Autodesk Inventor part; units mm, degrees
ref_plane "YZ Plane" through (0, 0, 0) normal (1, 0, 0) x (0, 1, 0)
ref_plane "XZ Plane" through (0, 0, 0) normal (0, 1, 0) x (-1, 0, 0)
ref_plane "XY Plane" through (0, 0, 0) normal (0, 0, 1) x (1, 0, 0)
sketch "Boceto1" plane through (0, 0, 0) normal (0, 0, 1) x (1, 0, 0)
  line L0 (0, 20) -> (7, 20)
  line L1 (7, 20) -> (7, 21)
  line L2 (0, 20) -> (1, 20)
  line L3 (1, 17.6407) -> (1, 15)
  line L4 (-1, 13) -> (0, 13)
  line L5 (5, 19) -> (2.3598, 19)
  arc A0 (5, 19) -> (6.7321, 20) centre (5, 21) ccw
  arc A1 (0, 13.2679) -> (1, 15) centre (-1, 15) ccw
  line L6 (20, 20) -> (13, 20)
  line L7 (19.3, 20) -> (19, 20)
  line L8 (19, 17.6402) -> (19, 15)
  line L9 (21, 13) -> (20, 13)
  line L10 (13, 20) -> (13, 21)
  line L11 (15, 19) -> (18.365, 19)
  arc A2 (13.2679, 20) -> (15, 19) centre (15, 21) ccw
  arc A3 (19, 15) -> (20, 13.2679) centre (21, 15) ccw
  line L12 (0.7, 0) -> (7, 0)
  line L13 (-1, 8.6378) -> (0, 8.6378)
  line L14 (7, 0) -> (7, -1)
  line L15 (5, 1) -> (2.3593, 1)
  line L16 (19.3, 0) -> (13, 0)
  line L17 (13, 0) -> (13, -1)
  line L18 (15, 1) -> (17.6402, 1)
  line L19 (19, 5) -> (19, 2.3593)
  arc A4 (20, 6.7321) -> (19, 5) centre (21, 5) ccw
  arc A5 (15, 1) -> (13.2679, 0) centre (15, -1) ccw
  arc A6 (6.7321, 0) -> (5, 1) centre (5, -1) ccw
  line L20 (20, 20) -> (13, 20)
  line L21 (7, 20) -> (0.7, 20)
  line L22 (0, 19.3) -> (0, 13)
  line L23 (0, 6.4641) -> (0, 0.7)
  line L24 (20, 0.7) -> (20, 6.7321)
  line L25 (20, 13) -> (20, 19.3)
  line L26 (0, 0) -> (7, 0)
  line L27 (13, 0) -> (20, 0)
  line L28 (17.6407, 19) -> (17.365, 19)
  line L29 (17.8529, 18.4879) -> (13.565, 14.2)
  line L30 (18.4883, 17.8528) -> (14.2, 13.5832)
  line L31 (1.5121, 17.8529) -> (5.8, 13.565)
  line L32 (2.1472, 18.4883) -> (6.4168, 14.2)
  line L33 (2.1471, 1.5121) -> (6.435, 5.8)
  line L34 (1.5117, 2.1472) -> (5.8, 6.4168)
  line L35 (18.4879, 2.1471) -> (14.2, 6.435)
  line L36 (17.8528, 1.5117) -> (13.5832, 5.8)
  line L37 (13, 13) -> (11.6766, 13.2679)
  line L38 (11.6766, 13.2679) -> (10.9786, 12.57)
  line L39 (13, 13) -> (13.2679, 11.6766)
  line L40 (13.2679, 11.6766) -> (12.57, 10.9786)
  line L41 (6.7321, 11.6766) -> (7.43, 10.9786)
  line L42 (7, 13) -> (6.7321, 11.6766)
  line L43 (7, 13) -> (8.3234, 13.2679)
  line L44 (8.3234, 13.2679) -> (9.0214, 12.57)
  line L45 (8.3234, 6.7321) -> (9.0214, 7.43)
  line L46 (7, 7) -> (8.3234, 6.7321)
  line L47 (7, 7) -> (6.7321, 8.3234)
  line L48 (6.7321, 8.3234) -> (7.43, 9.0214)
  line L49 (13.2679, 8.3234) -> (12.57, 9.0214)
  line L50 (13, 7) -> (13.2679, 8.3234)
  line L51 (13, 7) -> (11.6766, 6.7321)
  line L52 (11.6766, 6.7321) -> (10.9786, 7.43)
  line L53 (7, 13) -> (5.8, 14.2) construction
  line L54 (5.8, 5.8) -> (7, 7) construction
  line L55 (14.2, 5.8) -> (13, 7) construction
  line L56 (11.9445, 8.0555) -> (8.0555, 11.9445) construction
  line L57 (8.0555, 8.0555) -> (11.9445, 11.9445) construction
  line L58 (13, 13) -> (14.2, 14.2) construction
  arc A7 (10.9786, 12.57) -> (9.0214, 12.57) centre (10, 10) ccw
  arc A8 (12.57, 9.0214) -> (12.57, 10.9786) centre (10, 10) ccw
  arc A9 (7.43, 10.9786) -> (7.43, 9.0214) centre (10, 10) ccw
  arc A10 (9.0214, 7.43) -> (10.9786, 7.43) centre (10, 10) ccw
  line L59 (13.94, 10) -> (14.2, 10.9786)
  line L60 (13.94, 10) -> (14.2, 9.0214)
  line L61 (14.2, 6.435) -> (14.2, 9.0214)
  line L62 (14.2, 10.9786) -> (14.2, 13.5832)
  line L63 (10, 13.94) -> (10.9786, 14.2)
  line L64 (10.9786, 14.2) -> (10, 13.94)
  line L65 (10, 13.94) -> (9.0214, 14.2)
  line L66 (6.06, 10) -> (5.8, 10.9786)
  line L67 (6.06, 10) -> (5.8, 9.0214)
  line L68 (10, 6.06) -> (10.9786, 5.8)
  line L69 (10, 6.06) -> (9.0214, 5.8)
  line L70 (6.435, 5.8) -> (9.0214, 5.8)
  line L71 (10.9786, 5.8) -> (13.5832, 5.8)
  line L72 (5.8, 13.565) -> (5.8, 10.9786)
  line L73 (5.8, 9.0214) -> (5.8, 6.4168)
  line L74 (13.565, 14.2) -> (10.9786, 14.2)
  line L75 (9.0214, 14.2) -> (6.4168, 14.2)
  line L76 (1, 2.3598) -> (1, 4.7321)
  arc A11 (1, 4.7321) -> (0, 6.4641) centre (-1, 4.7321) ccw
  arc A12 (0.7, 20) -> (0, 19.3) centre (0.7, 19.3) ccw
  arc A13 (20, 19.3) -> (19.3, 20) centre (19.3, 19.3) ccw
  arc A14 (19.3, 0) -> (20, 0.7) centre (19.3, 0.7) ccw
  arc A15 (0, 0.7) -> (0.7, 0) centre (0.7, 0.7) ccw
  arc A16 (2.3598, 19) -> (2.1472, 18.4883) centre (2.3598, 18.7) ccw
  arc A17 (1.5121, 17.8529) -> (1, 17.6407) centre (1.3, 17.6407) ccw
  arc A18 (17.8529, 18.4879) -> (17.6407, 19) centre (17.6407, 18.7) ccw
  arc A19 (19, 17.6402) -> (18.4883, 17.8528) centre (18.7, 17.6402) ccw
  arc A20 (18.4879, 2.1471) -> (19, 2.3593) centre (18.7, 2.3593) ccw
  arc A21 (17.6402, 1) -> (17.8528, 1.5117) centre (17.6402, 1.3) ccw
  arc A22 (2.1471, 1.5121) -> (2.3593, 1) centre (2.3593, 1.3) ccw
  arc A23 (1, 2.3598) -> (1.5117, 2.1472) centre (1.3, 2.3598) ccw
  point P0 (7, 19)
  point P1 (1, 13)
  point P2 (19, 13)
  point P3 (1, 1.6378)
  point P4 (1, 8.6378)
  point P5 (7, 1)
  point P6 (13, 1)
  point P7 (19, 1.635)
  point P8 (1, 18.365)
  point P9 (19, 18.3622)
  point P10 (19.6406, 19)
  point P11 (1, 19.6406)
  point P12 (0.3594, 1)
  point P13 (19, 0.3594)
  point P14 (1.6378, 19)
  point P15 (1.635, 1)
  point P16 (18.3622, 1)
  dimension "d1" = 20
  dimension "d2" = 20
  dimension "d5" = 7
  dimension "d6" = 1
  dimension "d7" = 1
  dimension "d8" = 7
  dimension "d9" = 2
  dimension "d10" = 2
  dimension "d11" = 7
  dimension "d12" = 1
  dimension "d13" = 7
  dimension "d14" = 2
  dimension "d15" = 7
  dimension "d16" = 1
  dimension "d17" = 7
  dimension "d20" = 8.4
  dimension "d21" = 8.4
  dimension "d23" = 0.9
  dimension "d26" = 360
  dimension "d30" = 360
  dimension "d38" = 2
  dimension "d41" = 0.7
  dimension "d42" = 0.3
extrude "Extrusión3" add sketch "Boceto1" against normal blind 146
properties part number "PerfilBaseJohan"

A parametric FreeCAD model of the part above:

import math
import FreeCAD as App
import Part
import Sketcher

V = App.Vector
Q = App.Units.Quantity

doc = App.newDocument("Part")
body = doc.addObject("PartDesign::Body", "Body")

# Sketch on XY plane
sketch1 = body.newObject("Sketcher::SketchObject", "Sketch")
sketch1.AttachmentSupport = (doc.getObject("XY_Plane"), [""])
sketch1.MapMode = "FlatFace"
sketch1.addGeometry([
    Part.LineSegment(V(6.7321, 20, 0), V(0.7, 20, 0)),  # 0
    Part.ArcOfCircle(Part.Circle(V(0.7, 19.3, 0), V(0, 0, 1), 0.7), math.radians(90), math.radians(180)),  # 1
    Part.LineSegment(V(0, 19.3, 0), V(0, 13.2679, 0)),  # 2
    Part.ArcOfCircle(Part.Circle(V(-1, 15, 0), V(0, 0, 1), 2.000043), math.radians(-60.000705), math.radians(0)),  # 3
    Part.LineSegment(V(1, 15, 0), V(1, 17.6407, 0)),  # 4
    Part.ArcOfCircle(Part.Circle(V(1.3, 17.6407, 0), V(0, 0, 1), 0.300025), math.radians(45.013504), math.radians(180)),  # 5
    Part.LineSegment(V(1.5121, 17.8529, 0), V(5.8, 13.565, 0)),  # 6
    Part.LineSegment(V(5.8, 13.565, 0), V(5.8, 10.9786, 0)),  # 7
    Part.LineSegment(V(5.8, 10.9786, 0), V(6.06, 10, 0)),  # 8
    Part.LineSegment(V(6.06, 10, 0), V(5.8, 9.0214, 0)),  # 9
    Part.LineSegment(V(5.8, 9.0214, 0), V(5.8, 6.4168, 0)),  # 10
    Part.LineSegment(V(5.8, 6.4168, 0), V(1.5117, 2.1472, 0)),  # 11
    Part.ArcOfCircle(Part.Circle(V(1.3, 2.3598, 0), V(0, 0, 1), 0.3), math.radians(180), math.radians(314.878468)),  # 12
    Part.LineSegment(V(1, 2.3598, 0), V(1, 4.7321, 0)),  # 13
    Part.ArcOfCircle(Part.Circle(V(-1, 4.7321, 0), V(0, 0, 1), 2), math.radians(0), math.radians(59.999272)),  # 14
    Part.LineSegment(V(0, 6.4641, 0), V(0, 0.7, 0)),  # 15
    Part.ArcOfCircle(Part.Circle(V(0.7, 0.7, 0), V(0, 0, 1), 0.7), math.radians(180), math.radians(270)),  # 16
    Part.LineSegment(V(0.7, 0, 0), V(6.7321, 0, 0)),  # 17
    Part.ArcOfCircle(Part.Circle(V(5, -1, 0), V(0, 0, 1), 2.000043), math.radians(29.999295), math.radians(90)),  # 18
    Part.LineSegment(V(5, 1, 0), V(2.3593, 1, 0)),  # 19
    Part.ArcOfCircle(Part.Circle(V(2.3593, 1.3, 0), V(0, 0, 1), 0.300025), math.radians(135.013504), math.radians(270)),  # 20
    Part.LineSegment(V(2.1471, 1.5121, 0), V(6.435, 5.8, 0)),  # 21
    Part.LineSegment(V(6.435, 5.8, 0), V(9.0214, 5.8, 0)),  # 22
    Part.LineSegment(V(9.0214, 5.8, 0), V(10, 6.06, 0)),  # 23
    Part.LineSegment(V(10, 6.06, 0), V(10.9786, 5.8, 0)),  # 24
    Part.LineSegment(V(10.9786, 5.8, 0), V(13.5832, 5.8, 0)),  # 25
    Part.LineSegment(V(13.5832, 5.8, 0), V(17.8528, 1.5117, 0)),  # 26
    Part.ArcOfCircle(Part.Circle(V(17.6402, 1.3, 0), V(0, 0, 1), 0.3), math.radians(-90), math.radians(44.878468)),  # 27
    Part.LineSegment(V(17.6402, 1, 0), V(15, 1, 0)),  # 28
    Part.ArcOfCircle(Part.Circle(V(15, -1, 0), V(0, 0, 1), 2), math.radians(90), math.radians(150.000705)),  # 29
    Part.LineSegment(V(13.2679, 0, 0), V(19.3, 0, 0)),  # 30
    Part.ArcOfCircle(Part.Circle(V(19.3, 0.7, 0), V(0, 0, 1), 0.7), math.radians(-90), math.radians(0)),  # 31
    Part.LineSegment(V(20, 0.7, 0), V(20, 6.7321, 0)),  # 32
    Part.ArcOfCircle(Part.Circle(V(21, 5, 0), V(0, 0, 1), 2.000043), math.radians(119.999295), math.radians(180)),  # 33
    Part.LineSegment(V(19, 5, 0), V(19, 2.3593, 0)),  # 34
    Part.ArcOfCircle(Part.Circle(V(18.7, 2.3593, 0), V(0, 0, 1), 0.300025), math.radians(-134.986496), math.radians(0)),  # 35
    Part.LineSegment(V(18.4879, 2.1471, 0), V(14.2, 6.435, 0)),  # 36
    Part.LineSegment(V(14.2, 6.435, 0), V(14.2, 9.0214, 0)),  # 37
    Part.LineSegment(V(14.2, 9.0214, 0), V(13.94, 10, 0)),  # 38
    Part.LineSegment(V(13.94, 10, 0), V(14.2, 10.9786, 0)),  # 39
    Part.LineSegment(V(14.2, 10.9786, 0), V(14.2, 13.5832, 0)),  # 40
    Part.LineSegment(V(14.2, 13.5832, 0), V(18.4883, 17.8528, 0)),  # 41
    Part.ArcOfCircle(Part.Circle(V(18.7, 17.6402, 0), V(0, 0, 1), 0.3), math.radians(0), math.radians(134.878468)),  # 42
    Part.LineSegment(V(19, 17.6402, 0), V(19, 15, 0)),  # 43
    Part.ArcOfCircle(Part.Circle(V(21, 15, 0), V(0, 0, 1), 2), math.radians(180), math.radians(240.000705)),  # 44
    Part.LineSegment(V(20, 13.2679, 0), V(20, 19.3, 0)),  # 45
    Part.ArcOfCircle(Part.Circle(V(19.3, 19.3, 0), V(0, 0, 1), 0.7), math.radians(0), math.radians(90)),  # 46
    Part.LineSegment(V(19.3, 20, 0), V(13.2679, 20, 0)),  # 47
    Part.ArcOfCircle(Part.Circle(V(15, 21, 0), V(0, 0, 1), 2.000043), math.radians(-150.000705), math.radians(-90)),  # 48
    Part.LineSegment(V(15, 19, 0), V(17.6407, 19, 0)),  # 49
    Part.ArcOfCircle(Part.Circle(V(17.6407, 18.7, 0), V(0, 0, 1), 0.300025), math.radians(-44.986496), math.radians(90)),  # 50
    Part.LineSegment(V(17.8529, 18.4879, 0), V(13.565, 14.2, 0)),  # 51
    Part.LineSegment(V(13.565, 14.2, 0), V(10.9786, 14.2, 0)),  # 52
    Part.LineSegment(V(10.9786, 14.2, 0), V(10, 13.94, 0)),  # 53
    Part.LineSegment(V(10, 13.94, 0), V(9.0214, 14.2, 0)),  # 54
    Part.LineSegment(V(9.0214, 14.2, 0), V(6.4168, 14.2, 0)),  # 55
    Part.LineSegment(V(6.4168, 14.2, 0), V(2.1472, 18.4883, 0)),  # 56
    Part.ArcOfCircle(Part.Circle(V(2.3598, 18.7, 0), V(0, 0, 1), 0.3), math.radians(90), math.radians(224.878468)),  # 57
    Part.LineSegment(V(2.3598, 19, 0), V(5, 19, 0)),  # 58
    Part.ArcOfCircle(Part.Circle(V(5, 21, 0), V(0, 0, 1), 2), math.radians(-90), math.radians(-29.999295)),  # 59
    Part.LineSegment(V(11.6766, 13.2679, 0), V(13, 13, 0)),  # 60
    Part.LineSegment(V(13, 13, 0), V(13.2679, 11.6766, 0)),  # 61
    Part.LineSegment(V(13.2679, 11.6766, 0), V(12.57, 10.9786, 0)),  # 62
    Part.ArcOfCircle(Part.Circle(V(10, 10, 0), V(0, 0, 1), 2.750011), math.radians(-20.845743), math.radians(20.845743)),  # 63
    Part.LineSegment(V(12.57, 9.0214, 0), V(13.2679, 8.3234, 0)),  # 64
    Part.LineSegment(V(13.2679, 8.3234, 0), V(13, 7, 0)),  # 65
    Part.LineSegment(V(13, 7, 0), V(11.6766, 6.7321, 0)),  # 66
    Part.LineSegment(V(11.6766, 6.7321, 0), V(10.9786, 7.43, 0)),  # 67
    Part.ArcOfCircle(Part.Circle(V(10, 10, 0), V(0, 0, 1), 2.750011), math.radians(-110.845743), math.radians(-69.154257)),  # 68
    Part.LineSegment(V(9.0214, 7.43, 0), V(8.3234, 6.7321, 0)),  # 69
    Part.LineSegment(V(8.3234, 6.7321, 0), V(7, 7, 0)),  # 70
    Part.LineSegment(V(7, 7, 0), V(6.7321, 8.3234, 0)),  # 71
    Part.LineSegment(V(6.7321, 8.3234, 0), V(7.43, 9.0214, 0)),  # 72
    Part.ArcOfCircle(Part.Circle(V(10, 10, 0), V(0, 0, 1), 2.750011), math.radians(159.154257), math.radians(200.845743)),  # 73
    Part.LineSegment(V(7.43, 10.9786, 0), V(6.7321, 11.6766, 0)),  # 74
    Part.LineSegment(V(6.7321, 11.6766, 0), V(7, 13, 0)),  # 75
    Part.LineSegment(V(7, 13, 0), V(8.3234, 13.2679, 0)),  # 76
    Part.LineSegment(V(8.3234, 13.2679, 0), V(9.0214, 12.57, 0)),  # 77
    Part.ArcOfCircle(Part.Circle(V(10, 10, 0), V(0, 0, 1), 2.750011), math.radians(69.154257), math.radians(110.845743)),  # 78
    Part.LineSegment(V(10.9786, 12.57, 0), V(11.6766, 13.2679, 0)),  # 79
], False)
sketch1.addConstraint([
    Sketcher.Constraint("Tangent", 0, 2, 1, 1),
    Sketcher.Constraint("Tangent", 1, 2, 2, 1),
    Sketcher.Constraint("Coincident", 2, 2, 3, 1),
    Sketcher.Constraint("Tangent", 3, 2, 4, 1),
    Sketcher.Constraint("Tangent", 4, 2, 5, 2),
    Sketcher.Constraint("Tangent", 5, 1, 6, 1),
    Sketcher.Constraint("Coincident", 6, 2, 7, 1),
    Sketcher.Constraint("Coincident", 7, 2, 8, 1),
    Sketcher.Constraint("Coincident", 8, 2, 9, 1),
    Sketcher.Constraint("Coincident", 9, 2, 10, 1),
    Sketcher.Constraint("Coincident", 10, 2, 11, 1),
    Sketcher.Constraint("Tangent", 11, 2, 12, 2),
    Sketcher.Constraint("Tangent", 12, 1, 13, 1),
    Sketcher.Constraint("Tangent", 13, 2, 14, 1),
    Sketcher.Constraint("Coincident", 14, 2, 15, 1),
    Sketcher.Constraint("Tangent", 15, 2, 16, 1),
    Sketcher.Constraint("Tangent", 16, 2, 17, 1),
    Sketcher.Constraint("Coincident", 17, 2, 18, 1),
    Sketcher.Constraint("Tangent", 18, 2, 19, 1),
    Sketcher.Constraint("Tangent", 19, 2, 20, 2),
    Sketcher.Constraint("Tangent", 20, 1, 21, 1),
    Sketcher.Constraint("Coincident", 21, 2, 22, 1),
    Sketcher.Constraint("Coincident", 22, 2, 23, 1),
    Sketcher.Constraint("Coincident", 23, 2, 24, 1),
    Sketcher.Constraint("Coincident", 24, 2, 25, 1),
    Sketcher.Constraint("Coincident", 25, 2, 26, 1),
    Sketcher.Constraint("Tangent", 26, 2, 27, 2),
    Sketcher.Constraint("Tangent", 27, 1, 28, 1),
    Sketcher.Constraint("Tangent", 28, 2, 29, 1),
    Sketcher.Constraint("Coincident", 29, 2, 30, 1),
    Sketcher.Constraint("Tangent", 30, 2, 31, 1),
    Sketcher.Constraint("Tangent", 31, 2, 32, 1),
    Sketcher.Constraint("Coincident", 32, 2, 33, 1),
    Sketcher.Constraint("Tangent", 33, 2, 34, 1),
    Sketcher.Constraint("Tangent", 34, 2, 35, 2),
    Sketcher.Constraint("Tangent", 35, 1, 36, 1),
    Sketcher.Constraint("Coincident", 36, 2, 37, 1),
    Sketcher.Constraint("Coincident", 37, 2, 38, 1),
    Sketcher.Constraint("Coincident", 38, 2, 39, 1),
    Sketcher.Constraint("Coincident", 39, 2, 40, 1),
    Sketcher.Constraint("Coincident", 40, 2, 41, 1),
    Sketcher.Constraint("Tangent", 41, 2, 42, 2),
    Sketcher.Constraint("Tangent", 42, 1, 43, 1),
    Sketcher.Constraint("Tangent", 43, 2, 44, 1),
    Sketcher.Constraint("Coincident", 44, 2, 45, 1),
    Sketcher.Constraint("Tangent", 45, 2, 46, 1),
    Sketcher.Constraint("Tangent", 46, 2, 47, 1),
    Sketcher.Constraint("Coincident", 47, 2, 48, 1),
    Sketcher.Constraint("Tangent", 48, 2, 49, 1),
    Sketcher.Constraint("Tangent", 49, 2, 50, 2),
    Sketcher.Constraint("Tangent", 50, 1, 51, 1),
    Sketcher.Constraint("Coincident", 51, 2, 52, 1),
    Sketcher.Constraint("Coincident", 52, 2, 53, 1),
    Sketcher.Constraint("Coincident", 53, 2, 54, 1),
    Sketcher.Constraint("Coincident", 54, 2, 55, 1),
    Sketcher.Constraint("Coincident", 55, 2, 56, 1),
    Sketcher.Constraint("Tangent", 56, 2, 57, 2),
    Sketcher.Constraint("Tangent", 57, 1, 58, 1),
    Sketcher.Constraint("Tangent", 58, 2, 59, 1),
    Sketcher.Constraint("Coincident", 59, 2, 0, 1),
    Sketcher.Constraint("Coincident", 60, 2, 61, 1),
    Sketcher.Constraint("Coincident", 61, 2, 62, 1),
    Sketcher.Constraint("Coincident", 62, 2, 63, 2),
    Sketcher.Constraint("Coincident", 63, 1, 64, 1),
    Sketcher.Constraint("Coincident", 64, 2, 65, 1),
    Sketcher.Constraint("Coincident", 65, 2, 66, 1),
    Sketcher.Constraint("Coincident", 66, 2, 67, 1),
    Sketcher.Constraint("Coincident", 67, 2, 68, 2),
    Sketcher.Constraint("Coincident", 68, 1, 69, 1),
    Sketcher.Constraint("Coincident", 69, 2, 70, 1),
    Sketcher.Constraint("Coincident", 70, 2, 71, 1),
    Sketcher.Constraint("Coincident", 71, 2, 72, 1),
    Sketcher.Constraint("Coincident", 72, 2, 73, 2),
    Sketcher.Constraint("Coincident", 73, 1, 74, 1),
    Sketcher.Constraint("Coincident", 74, 2, 75, 1),
    Sketcher.Constraint("Coincident", 75, 2, 76, 1),
    Sketcher.Constraint("Coincident", 76, 2, 77, 1),
    Sketcher.Constraint("Coincident", 77, 2, 78, 2),
    Sketcher.Constraint("Coincident", 78, 1, 79, 1),
    Sketcher.Constraint("Coincident", 79, 2, 60, 1),
    Sketcher.Constraint("Horizontal", 0),
    Sketcher.Constraint("Vertical", 2),
    Sketcher.Constraint("Vertical", 4),
    Sketcher.Constraint("Vertical", 7),
    Sketcher.Constraint("Vertical", 10),
    Sketcher.Constraint("Vertical", 13),
    Sketcher.Constraint("Vertical", 15),
    Sketcher.Constraint("Horizontal", 17),
    Sketcher.Constraint("Horizontal", 19),
    Sketcher.Constraint("Horizontal", 22),
    Sketcher.Constraint("Horizontal", 25),
    Sketcher.Constraint("Horizontal", 28),
    Sketcher.Constraint("Horizontal", 30),
    Sketcher.Constraint("Vertical", 32),
    Sketcher.Constraint("Vertical", 34),
    Sketcher.Constraint("Vertical", 37),
    Sketcher.Constraint("Vertical", 40),
    Sketcher.Constraint("Vertical", 43),
    Sketcher.Constraint("Vertical", 45),
    Sketcher.Constraint("Horizontal", 47),
    Sketcher.Constraint("Horizontal", 49),
    Sketcher.Constraint("Horizontal", 52),
    Sketcher.Constraint("Horizontal", 55),
    Sketcher.Constraint("Horizontal", 58),
    Sketcher.Constraint("Coincident", 68, 3, 63, 3),
    Sketcher.Constraint("Coincident", 73, 3, 63, 3),
    Sketcher.Constraint("Coincident", 78, 3, 63, 3),
    Sketcher.Constraint("Equal", 5, 12),
    Sketcher.Constraint("Equal", 3, 14),
    Sketcher.Constraint("Equal", 1, 16),
    Sketcher.Constraint("Equal", 14, 18),
    Sketcher.Constraint("Equal", 12, 20),
    Sketcher.Constraint("Equal", 20, 27),
    Sketcher.Constraint("Equal", 18, 29),
    Sketcher.Constraint("Equal", 16, 31),
    Sketcher.Constraint("Equal", 29, 33),
    Sketcher.Constraint("Equal", 27, 35),
    Sketcher.Constraint("Equal", 35, 42),
    Sketcher.Constraint("Equal", 33, 44),
    Sketcher.Constraint("Equal", 31, 46),
    Sketcher.Constraint("Equal", 44, 48),
    Sketcher.Constraint("Equal", 42, 50),
    Sketcher.Constraint("Equal", 50, 57),
    Sketcher.Constraint("Equal", 48, 59),
    Sketcher.Constraint("Equal", 63, 68),
    Sketcher.Constraint("Equal", 68, 73),
    Sketcher.Constraint("Equal", 73, 78),
    Sketcher.Constraint("PointOnObject", 1, 2, -2),
    Sketcher.Constraint("PointOnObject", 14, 2, -2),
    Sketcher.Constraint("PointOnObject", 16, 2, -1),
    Sketcher.Constraint("PointOnObject", 29, 2, -1),
    Sketcher.Constraint("Perpendicular", 6, 21),
    Sketcher.Constraint("Perpendicular", 8, 23),
    Sketcher.Constraint("Perpendicular", 9, 24),
    Sketcher.Constraint("Perpendicular", 11, 26),
    Sketcher.Constraint("Perpendicular", 21, 36),
    Sketcher.Constraint("Perpendicular", 23, 38),
    Sketcher.Constraint("Perpendicular", 24, 39),
    Sketcher.Constraint("Perpendicular", 26, 41),
    Sketcher.Constraint("Perpendicular", 36, 51),
    Sketcher.Constraint("Perpendicular", 38, 53),
    Sketcher.Constraint("Perpendicular", 39, 54),
    Sketcher.Constraint("Perpendicular", 41, 56),
    Sketcher.Constraint("Parallel", 51, 62),
    Sketcher.Constraint("Perpendicular", 62, 64),
    Sketcher.Constraint("Perpendicular", 60, 65),
    Sketcher.Constraint("Perpendicular", 61, 66),
    Sketcher.Constraint("Parallel", 64, 67),
    Sketcher.Constraint("Perpendicular", 67, 69),
    Sketcher.Constraint("Perpendicular", 65, 70),
    Sketcher.Constraint("Perpendicular", 66, 71),
    Sketcher.Constraint("Parallel", 69, 72),
    Sketcher.Constraint("Perpendicular", 72, 74),
    Sketcher.Constraint("Perpendicular", 70, 75),
    Sketcher.Constraint("Perpendicular", 71, 76),
    Sketcher.Constraint("Parallel", 74, 77),
    Sketcher.Constraint("Perpendicular", 77, 79),
    Sketcher.Constraint("Horizontal", 20, 3, 27, 3),
    Sketcher.Constraint("Horizontal", 3, 3, 44, 3),
    Sketcher.Constraint("Horizontal", 1, 3, 46, 3),
    Sketcher.Constraint("Horizontal", 50, 3, 57, 3),
    Sketcher.Constraint("Horizontal", 78, 3, 8, 2),
    Sketcher.Constraint("Horizontal", 22, 2, 24, 2),
    Sketcher.Constraint("Horizontal", 11, 2, 35, 1),
    Sketcher.Constraint("Horizontal", 9, 2, 37, 2),
    Sketcher.Constraint("Horizontal", 8, 2, 38, 2),
    Sketcher.Constraint("Horizontal", 7, 2, 39, 2),
    Sketcher.Constraint("Horizontal", 5, 1, 41, 2),
    Sketcher.Constraint("Horizontal", 2, 2, 44, 2),
    Sketcher.Constraint("Horizontal", 52, 2, 54, 2),
    Sketcher.Constraint("Horizontal", 39, 2, 62, 2),
    Sketcher.Constraint("Horizontal", 37, 2, 63, 1),
    Sketcher.Constraint("Horizontal", 32, 2, 66, 2),
    Sketcher.Constraint("Horizontal", 67, 2, 68, 1),
    Sketcher.Constraint("Horizontal", 66, 2, 69, 2),
    Sketcher.Constraint("Horizontal", 65, 2, 70, 2),
    Sketcher.Constraint("Horizontal", 64, 2, 71, 2),
    Sketcher.Constraint("Horizontal", 63, 1, 72, 2),
    Sketcher.Constraint("Horizontal", 62, 2, 73, 1),
    Sketcher.Constraint("Horizontal", 61, 2, 74, 2),
    Sketcher.Constraint("Horizontal", 60, 2, 75, 2),
    Sketcher.Constraint("Horizontal", 44, 2, 76, 2),
    Sketcher.Constraint("Horizontal", 77, 2, 78, 1),
    Sketcher.Constraint("Vertical", 5, 3, 12, 3),
    Sketcher.Constraint("Vertical", 35, 3, 42, 3),
    Sketcher.Constraint("Vertical", 31, 3, 46, 3),
    Sketcher.Constraint("Vertical", 29, 3, 48, 3),
    Sketcher.Constraint("Vertical", 18, 3, 59, 3),
    Sketcher.Constraint("Vertical", 7, 2, 9, 2),
    Sketcher.Constraint("Vertical", 78, 3, 23, 2),
    Sketcher.Constraint("Vertical", 37, 2, 39, 2),
    Sketcher.Constraint("Vertical", 29, 2, 47, 2),
    Sketcher.Constraint("Vertical", 26, 2, 50, 1),
    Sketcher.Constraint("Vertical", 24, 2, 52, 2),
    Sketcher.Constraint("Vertical", 23, 2, 53, 2),
    Sketcher.Constraint("Vertical", 20, 1, 56, 2),
    Sketcher.Constraint("Vertical", 47, 2, 61, 2),
    Sketcher.Constraint("Vertical", 61, 2, 64, 2),
    Sketcher.Constraint("Vertical", 60, 2, 65, 2),
    Sketcher.Constraint("Vertical", 52, 2, 67, 2),
    Sketcher.Constraint("Vertical", 59, 2, 71, 2),
    Sketcher.Constraint("Vertical", 71, 2, 74, 2),
    Sketcher.Constraint("Vertical", 69, 2, 76, 2),
    Sketcher.Constraint("Equal", 17, 30),
    Sketcher.Constraint("Equal", 19, 49),
    Sketcher.Constraint("Equal", 22, 52),
    Sketcher.Constraint("Equal", 47, 2),
    Sketcher.Constraint("Equal", 49, 4),
    Sketcher.Constraint("Equal", 52, 7),
    Sketcher.Constraint("Equal", 55, 10),
    Sketcher.Constraint("Equal", 2, 32),
    Sketcher.Constraint("Equal", 7, 37),
    Sketcher.Constraint("Equal", 6, 21),
    Sketcher.Constraint("Equal", 9, 23),
    Sketcher.Constraint("Equal", 60, 61),
    Sketcher.Constraint("Radius", 3, 2.0),
    Sketcher.Constraint("Radius", 1, 0.7),
    Sketcher.Constraint("Radius", 5, 0.3),
    Sketcher.Constraint("DistanceX", 3, 3, -1, 1, 1.0),
    Sketcher.Constraint("DistanceY", -1, 1, 0, 2, 20.0),
    Sketcher.Constraint("DistanceY", -1, 1, 65, 2, 7.0),
    Sketcher.Constraint("Radius", 63, 2.75),
    Sketcher.Constraint("DistanceY", -1, 1, 3, 3, 15.0),
    Sketcher.Constraint("DistanceX", -1, 1, 6, 2, 5.8),
    Sketcher.Constraint("Angle", 8, Q("-75.121 deg")),
    Sketcher.Constraint("DistanceY", 15, 2, 15, 1, 5.764),
    Sketcher.Constraint("DistanceX", -1, 1, 8, 2, 6.06),
    Sketcher.Constraint("DistanceX", 19, 2, 19, 1, 2.6407),
    Sketcher.Constraint("DistanceX", 25, 1, 25, 2, 2.6046),
])
pad1 = body.newObject("PartDesign::Pad", "Pad")
pad1.Profile = sketch1
pad1.Length = 146
pad1.Reversed = True

doc.recompute()
